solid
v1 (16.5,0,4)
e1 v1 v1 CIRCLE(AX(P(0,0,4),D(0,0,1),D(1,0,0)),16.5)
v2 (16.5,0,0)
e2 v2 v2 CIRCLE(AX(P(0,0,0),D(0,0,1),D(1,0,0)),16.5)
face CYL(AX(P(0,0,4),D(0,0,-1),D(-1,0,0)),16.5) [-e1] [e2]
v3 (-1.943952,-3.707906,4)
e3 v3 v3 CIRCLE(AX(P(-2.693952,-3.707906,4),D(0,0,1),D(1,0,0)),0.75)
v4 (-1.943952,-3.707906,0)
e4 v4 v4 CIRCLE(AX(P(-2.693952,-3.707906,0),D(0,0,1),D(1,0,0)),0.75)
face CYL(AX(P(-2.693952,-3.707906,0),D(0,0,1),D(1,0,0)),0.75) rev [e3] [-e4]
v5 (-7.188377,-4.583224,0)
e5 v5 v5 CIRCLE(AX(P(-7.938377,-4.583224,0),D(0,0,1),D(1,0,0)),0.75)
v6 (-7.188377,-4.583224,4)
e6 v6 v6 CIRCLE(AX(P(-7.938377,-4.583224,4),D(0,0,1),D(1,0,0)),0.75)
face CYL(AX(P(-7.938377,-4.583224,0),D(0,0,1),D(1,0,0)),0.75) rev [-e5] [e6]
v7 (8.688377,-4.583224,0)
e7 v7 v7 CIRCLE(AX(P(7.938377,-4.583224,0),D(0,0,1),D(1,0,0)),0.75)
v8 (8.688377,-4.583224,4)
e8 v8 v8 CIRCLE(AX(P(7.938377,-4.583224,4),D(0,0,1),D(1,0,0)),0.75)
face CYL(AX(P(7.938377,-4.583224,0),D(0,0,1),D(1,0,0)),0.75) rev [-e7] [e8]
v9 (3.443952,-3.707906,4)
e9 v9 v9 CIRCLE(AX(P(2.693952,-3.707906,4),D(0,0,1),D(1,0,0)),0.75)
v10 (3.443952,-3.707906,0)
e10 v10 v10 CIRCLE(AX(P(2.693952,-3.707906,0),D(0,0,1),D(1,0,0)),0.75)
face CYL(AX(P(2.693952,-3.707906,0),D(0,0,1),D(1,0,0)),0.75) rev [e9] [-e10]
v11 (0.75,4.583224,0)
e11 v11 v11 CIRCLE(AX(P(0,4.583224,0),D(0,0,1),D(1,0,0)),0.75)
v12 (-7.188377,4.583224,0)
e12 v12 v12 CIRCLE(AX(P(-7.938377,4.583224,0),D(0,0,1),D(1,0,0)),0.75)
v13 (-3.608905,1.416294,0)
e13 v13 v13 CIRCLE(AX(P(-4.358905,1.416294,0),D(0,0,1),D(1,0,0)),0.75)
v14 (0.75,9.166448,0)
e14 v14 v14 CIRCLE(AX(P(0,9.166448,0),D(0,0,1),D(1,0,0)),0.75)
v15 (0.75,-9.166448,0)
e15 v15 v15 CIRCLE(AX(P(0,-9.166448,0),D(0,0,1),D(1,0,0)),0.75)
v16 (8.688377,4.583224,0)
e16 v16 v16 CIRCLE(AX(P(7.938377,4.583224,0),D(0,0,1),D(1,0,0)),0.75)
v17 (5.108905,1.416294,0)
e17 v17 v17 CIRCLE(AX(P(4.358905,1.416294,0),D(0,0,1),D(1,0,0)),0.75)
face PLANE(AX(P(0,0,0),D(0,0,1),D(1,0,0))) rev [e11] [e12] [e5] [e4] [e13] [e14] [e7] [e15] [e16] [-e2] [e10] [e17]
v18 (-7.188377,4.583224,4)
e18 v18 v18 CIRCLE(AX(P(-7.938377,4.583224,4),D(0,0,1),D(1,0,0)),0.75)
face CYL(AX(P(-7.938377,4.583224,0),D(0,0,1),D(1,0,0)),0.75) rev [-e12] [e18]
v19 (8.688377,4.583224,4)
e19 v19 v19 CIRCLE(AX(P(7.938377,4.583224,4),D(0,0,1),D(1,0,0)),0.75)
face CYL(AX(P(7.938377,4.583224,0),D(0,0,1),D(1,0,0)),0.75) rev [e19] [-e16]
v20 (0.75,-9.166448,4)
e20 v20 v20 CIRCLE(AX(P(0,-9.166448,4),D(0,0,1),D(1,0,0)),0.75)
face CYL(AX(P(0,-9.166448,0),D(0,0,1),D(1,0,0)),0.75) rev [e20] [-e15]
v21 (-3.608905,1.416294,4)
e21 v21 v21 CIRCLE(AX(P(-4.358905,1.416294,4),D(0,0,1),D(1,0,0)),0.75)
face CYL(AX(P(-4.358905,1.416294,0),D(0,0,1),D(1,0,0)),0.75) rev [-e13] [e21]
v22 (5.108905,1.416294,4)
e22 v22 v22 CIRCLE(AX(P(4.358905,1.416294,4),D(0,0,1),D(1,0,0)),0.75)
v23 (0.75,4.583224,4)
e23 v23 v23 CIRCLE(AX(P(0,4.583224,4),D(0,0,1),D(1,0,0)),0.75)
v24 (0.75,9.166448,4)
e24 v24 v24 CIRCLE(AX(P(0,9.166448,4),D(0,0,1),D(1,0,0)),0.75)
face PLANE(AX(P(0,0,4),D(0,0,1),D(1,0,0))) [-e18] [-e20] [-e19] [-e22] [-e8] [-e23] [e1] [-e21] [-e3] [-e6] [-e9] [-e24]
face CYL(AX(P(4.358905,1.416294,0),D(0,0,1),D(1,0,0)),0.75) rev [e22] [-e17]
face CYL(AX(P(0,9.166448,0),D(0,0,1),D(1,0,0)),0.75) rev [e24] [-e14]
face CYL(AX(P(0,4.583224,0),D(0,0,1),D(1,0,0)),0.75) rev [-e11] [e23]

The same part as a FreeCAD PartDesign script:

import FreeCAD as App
import Part
import Sketcher

V = App.Vector
Q = App.Units.Quantity

doc = App.newDocument("Part")
body = doc.addObject("PartDesign::Body", "Body")

# Sketch on XY plane
sketch1 = doc.addObject("Sketcher::SketchObject", "Sketch")
body.addObject(sketch1)
sketch1.AttachmentSupport = (doc.XY_Plane, [""])
sketch1.MapMode = "FlatFace"
sketch1.addGeometry(Part.Circle(V(0, 0, 0), V(0, 0, 1), 16), False)
sketch1.addConstraint([
    Sketcher.Constraint("Coincident", 0, 3, -1, 1),
    Sketcher.Constraint("Diameter", 0, Q("33 mm")),
])
pad1 = doc.addObject("PartDesign::Pad", "Pad")
body.addObject(pad1)
pad1.Profile = sketch1
pad1.Length = 4

# Sketch on XY plane
sketch2 = doc.addObject("Sketcher::SketchObject", "Sketch001")
body.addObject(sketch2)
sketch2.AttachmentSupport = (doc.XY_Plane, [""])
sketch2.MapMode = "FlatFace"
sketch2.AttachmentOffset = App.Placement(V(0, 0, 4), App.Rotation())
sketch2.addGeometry([
    Part.Circle(V(0, 9.2, 0), V(0, 0, 1), 0.8),  # 0
    Part.Circle(V(7.9, 4.6, 0), V(0, 0, 1), 0.8),  # 1
    Part.Circle(V(7.9, -4.6, 0), V(0, 0, 1), 0.8),  # 2
    Part.Circle(V(0, -9.2, 0), V(0, 0, 1), 0.8),  # 3
    Part.Circle(V(-7.9, -4.6, 0), V(0, 0, 1), 0.8),  # 4
    Part.Circle(V(-7.9, 4.6, 0), V(0, 0, 1), 0.8),  # 5
    Part.Circle(V(0, 4.6, 0), V(0, 0, 1), 0.8),  # 6
    Part.Circle(V(4.4, 1.4, 0), V(0, 0, 1), 0.8),  # 7
    Part.Circle(V(2.7, -3.7, 0), V(0, 0, 1), 0.8),  # 8
    Part.Circle(V(-2.7, -3.7, 0), V(0, 0, 1), 0.8),  # 9
    Part.Circle(V(-4.4, 1.4, 0), V(0, 0, 1), 0.8),  # 10
], False)
sketch2.addConstraint([
    Sketcher.Constraint("Equal", 0, 1),
    Sketcher.Constraint("Equal", 1, 2),
    Sketcher.Constraint("Equal", 2, 3),
    Sketcher.Constraint("Equal", 3, 4),
    Sketcher.Constraint("Equal", 4, 5),
    Sketcher.Constraint("Equal", 5, 6),
    Sketcher.Constraint("Equal", 6, 7),
    Sketcher.Constraint("Equal", 7, 8),
    Sketcher.Constraint("Equal", 8, 9),
    Sketcher.Constraint("Equal", 9, 10),
    Sketcher.Constraint("Symmetric", 0, 3, 3, 3, -1, 1),
    Sketcher.Constraint("Symmetric", 1, 3, 4, 3, -1, 1),
    Sketcher.Constraint("Symmetric", 2, 3, 5, 3, -1, 1),
    Sketcher.Constraint("Symmetric", 2, 3, 4, 3, -2),
    Sketcher.Constraint("Symmetric", 8, 3, 9, 3, -2),
    Sketcher.Constraint("Symmetric", 7, 3, 10, 3, -2),
    Sketcher.Constraint("PointOnObject", 0, 3, -2),
    Sketcher.Constraint("PointOnObject", 6, 3, -2),
    Sketcher.Constraint("Horizontal", 5, 3, 6, 3),
    Sketcher.Constraint("Diameter", 0, Q("1.5 mm")),
    Sketcher.Constraint("DistanceY", 8, 3, 7, 3, Q("5.1242 mm")),
    Sketcher.Constraint("DistanceY", -1, 1, 0, 3, Q("9.166448 mm")),
    Sketcher.Constraint("DistanceX", -1, 1, 8, 3, Q("2.693952 mm")),
    Sketcher.Constraint("DistanceY", 2, 3, 1, 3, Q("9.166448 mm")),
    Sketcher.Constraint("DistanceX", 7, 3, 1, 3, Q("3.579472 mm")),
    Sketcher.Constraint("DistanceY", 7, 3, 1, 3, Q("3.16693 mm")),
    Sketcher.Constraint("DistanceX", -1, 1, 1, 3, Q("7.938377 mm")),
])
pocket1 = doc.addObject("PartDesign::Pocket", "Pocket")
body.addObject(pocket1)
pocket1.Profile = sketch2
pocket1.Type = "ThroughAll"

doc.recompute()
